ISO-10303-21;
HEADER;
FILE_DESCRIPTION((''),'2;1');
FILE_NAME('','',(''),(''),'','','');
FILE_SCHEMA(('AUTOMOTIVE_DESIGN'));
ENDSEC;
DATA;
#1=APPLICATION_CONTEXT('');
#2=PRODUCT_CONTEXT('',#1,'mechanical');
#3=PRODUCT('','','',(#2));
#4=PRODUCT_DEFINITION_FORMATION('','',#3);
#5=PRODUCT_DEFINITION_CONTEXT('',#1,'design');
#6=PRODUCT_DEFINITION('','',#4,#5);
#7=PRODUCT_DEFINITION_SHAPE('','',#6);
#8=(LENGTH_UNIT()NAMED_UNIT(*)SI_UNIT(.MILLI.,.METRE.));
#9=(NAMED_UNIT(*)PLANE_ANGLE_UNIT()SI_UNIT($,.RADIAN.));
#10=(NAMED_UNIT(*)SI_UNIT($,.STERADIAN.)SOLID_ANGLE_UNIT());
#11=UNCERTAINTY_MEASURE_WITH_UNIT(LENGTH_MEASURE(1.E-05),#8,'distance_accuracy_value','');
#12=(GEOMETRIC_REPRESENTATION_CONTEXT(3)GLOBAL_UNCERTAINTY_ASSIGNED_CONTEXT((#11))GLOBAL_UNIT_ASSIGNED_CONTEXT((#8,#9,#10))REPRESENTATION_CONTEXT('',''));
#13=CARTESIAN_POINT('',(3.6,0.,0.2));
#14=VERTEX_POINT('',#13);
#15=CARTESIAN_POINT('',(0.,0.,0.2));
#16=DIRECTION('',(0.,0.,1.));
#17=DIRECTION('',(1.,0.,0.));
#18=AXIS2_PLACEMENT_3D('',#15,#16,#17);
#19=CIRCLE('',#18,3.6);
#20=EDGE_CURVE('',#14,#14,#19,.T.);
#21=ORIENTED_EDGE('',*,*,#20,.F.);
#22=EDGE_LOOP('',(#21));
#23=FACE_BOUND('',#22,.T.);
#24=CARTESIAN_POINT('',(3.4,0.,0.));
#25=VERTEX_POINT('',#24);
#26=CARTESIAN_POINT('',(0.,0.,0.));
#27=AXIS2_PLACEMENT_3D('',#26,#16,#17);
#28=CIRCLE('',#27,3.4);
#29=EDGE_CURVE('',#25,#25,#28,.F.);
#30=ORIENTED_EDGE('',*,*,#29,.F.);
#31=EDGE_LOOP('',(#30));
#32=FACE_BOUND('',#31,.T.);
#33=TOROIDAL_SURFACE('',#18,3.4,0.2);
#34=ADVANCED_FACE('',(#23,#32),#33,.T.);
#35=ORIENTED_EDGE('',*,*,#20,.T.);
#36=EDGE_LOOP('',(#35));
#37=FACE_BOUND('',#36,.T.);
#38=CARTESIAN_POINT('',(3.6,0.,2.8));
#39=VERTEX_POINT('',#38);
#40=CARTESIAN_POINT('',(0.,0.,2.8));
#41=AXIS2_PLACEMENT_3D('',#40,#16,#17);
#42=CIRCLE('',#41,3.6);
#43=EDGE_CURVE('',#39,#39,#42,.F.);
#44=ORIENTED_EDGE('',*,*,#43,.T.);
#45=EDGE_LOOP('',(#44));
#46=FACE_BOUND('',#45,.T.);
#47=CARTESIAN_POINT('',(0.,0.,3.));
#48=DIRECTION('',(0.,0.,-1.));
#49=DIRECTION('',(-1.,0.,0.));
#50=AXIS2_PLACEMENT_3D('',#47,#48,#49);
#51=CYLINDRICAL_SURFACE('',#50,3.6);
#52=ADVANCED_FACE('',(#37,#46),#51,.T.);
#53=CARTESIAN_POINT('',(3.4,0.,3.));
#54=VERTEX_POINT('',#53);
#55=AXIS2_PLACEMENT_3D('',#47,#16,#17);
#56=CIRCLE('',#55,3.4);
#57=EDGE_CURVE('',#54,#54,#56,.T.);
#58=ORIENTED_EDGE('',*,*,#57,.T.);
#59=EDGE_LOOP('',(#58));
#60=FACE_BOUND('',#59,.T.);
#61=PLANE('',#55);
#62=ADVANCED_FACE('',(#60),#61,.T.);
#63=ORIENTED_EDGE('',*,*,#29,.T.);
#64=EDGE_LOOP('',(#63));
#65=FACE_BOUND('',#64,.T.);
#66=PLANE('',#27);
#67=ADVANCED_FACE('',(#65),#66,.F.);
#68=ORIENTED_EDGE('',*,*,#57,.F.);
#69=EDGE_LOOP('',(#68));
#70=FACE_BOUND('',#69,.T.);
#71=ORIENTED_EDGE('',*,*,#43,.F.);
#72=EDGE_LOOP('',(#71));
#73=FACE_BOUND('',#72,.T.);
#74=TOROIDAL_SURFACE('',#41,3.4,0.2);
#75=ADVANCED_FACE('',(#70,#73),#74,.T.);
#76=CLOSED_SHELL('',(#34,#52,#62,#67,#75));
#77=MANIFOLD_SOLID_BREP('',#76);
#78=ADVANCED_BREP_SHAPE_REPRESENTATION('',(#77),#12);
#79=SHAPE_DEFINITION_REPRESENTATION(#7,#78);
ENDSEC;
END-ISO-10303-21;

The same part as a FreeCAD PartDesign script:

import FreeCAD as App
import Part
import Sketcher
Q = App.Units.Quantity


def edges_at(feature, points):
    """Names of the edges that pass closest to the given points."""
    edges = feature.Shape.Edges
    near = lambda p: min(range(len(edges)), key=lambda i: edges[i].distToShape(Part.Vertex(*p))[0])
    return sorted({f"Edge{near(p) + 1}" for p in points})

doc = App.newDocument("Part")
body = doc.addObject("PartDesign::Body", "Body")

# Sketch on XY plane
sketch1 = body.newObject("Sketcher::SketchObject", "Sketch")
sketch1.AttachmentSupport = (doc.getObject("XY_Plane"), [""])
sketch1.MapMode = "FlatFace"
sketch1.addGeometry(Part.Circle(App.Vector(0, 0, 0), App.Vector(0, 0, 1), 3.6), False)
sketch1.addConstraint([
    Sketcher.Constraint("Coincident", 0, 3, -1, 1),
    Sketcher.Constraint("Diameter", 0, Q("7.2 mm")),
])
pad1 = body.newObject("PartDesign::Pad", "Pad")
pad1.Profile = sketch1
pad1.Length = 3
doc.recompute()

fillet = body.newObject("PartDesign::Fillet", "Fillet")
fillet.Base = (pad1, edges_at(pad1, [(-3.6, 0, 0), (-3.6, 0, 3)]))
fillet.Radius = 0.2

doc.recompute()
